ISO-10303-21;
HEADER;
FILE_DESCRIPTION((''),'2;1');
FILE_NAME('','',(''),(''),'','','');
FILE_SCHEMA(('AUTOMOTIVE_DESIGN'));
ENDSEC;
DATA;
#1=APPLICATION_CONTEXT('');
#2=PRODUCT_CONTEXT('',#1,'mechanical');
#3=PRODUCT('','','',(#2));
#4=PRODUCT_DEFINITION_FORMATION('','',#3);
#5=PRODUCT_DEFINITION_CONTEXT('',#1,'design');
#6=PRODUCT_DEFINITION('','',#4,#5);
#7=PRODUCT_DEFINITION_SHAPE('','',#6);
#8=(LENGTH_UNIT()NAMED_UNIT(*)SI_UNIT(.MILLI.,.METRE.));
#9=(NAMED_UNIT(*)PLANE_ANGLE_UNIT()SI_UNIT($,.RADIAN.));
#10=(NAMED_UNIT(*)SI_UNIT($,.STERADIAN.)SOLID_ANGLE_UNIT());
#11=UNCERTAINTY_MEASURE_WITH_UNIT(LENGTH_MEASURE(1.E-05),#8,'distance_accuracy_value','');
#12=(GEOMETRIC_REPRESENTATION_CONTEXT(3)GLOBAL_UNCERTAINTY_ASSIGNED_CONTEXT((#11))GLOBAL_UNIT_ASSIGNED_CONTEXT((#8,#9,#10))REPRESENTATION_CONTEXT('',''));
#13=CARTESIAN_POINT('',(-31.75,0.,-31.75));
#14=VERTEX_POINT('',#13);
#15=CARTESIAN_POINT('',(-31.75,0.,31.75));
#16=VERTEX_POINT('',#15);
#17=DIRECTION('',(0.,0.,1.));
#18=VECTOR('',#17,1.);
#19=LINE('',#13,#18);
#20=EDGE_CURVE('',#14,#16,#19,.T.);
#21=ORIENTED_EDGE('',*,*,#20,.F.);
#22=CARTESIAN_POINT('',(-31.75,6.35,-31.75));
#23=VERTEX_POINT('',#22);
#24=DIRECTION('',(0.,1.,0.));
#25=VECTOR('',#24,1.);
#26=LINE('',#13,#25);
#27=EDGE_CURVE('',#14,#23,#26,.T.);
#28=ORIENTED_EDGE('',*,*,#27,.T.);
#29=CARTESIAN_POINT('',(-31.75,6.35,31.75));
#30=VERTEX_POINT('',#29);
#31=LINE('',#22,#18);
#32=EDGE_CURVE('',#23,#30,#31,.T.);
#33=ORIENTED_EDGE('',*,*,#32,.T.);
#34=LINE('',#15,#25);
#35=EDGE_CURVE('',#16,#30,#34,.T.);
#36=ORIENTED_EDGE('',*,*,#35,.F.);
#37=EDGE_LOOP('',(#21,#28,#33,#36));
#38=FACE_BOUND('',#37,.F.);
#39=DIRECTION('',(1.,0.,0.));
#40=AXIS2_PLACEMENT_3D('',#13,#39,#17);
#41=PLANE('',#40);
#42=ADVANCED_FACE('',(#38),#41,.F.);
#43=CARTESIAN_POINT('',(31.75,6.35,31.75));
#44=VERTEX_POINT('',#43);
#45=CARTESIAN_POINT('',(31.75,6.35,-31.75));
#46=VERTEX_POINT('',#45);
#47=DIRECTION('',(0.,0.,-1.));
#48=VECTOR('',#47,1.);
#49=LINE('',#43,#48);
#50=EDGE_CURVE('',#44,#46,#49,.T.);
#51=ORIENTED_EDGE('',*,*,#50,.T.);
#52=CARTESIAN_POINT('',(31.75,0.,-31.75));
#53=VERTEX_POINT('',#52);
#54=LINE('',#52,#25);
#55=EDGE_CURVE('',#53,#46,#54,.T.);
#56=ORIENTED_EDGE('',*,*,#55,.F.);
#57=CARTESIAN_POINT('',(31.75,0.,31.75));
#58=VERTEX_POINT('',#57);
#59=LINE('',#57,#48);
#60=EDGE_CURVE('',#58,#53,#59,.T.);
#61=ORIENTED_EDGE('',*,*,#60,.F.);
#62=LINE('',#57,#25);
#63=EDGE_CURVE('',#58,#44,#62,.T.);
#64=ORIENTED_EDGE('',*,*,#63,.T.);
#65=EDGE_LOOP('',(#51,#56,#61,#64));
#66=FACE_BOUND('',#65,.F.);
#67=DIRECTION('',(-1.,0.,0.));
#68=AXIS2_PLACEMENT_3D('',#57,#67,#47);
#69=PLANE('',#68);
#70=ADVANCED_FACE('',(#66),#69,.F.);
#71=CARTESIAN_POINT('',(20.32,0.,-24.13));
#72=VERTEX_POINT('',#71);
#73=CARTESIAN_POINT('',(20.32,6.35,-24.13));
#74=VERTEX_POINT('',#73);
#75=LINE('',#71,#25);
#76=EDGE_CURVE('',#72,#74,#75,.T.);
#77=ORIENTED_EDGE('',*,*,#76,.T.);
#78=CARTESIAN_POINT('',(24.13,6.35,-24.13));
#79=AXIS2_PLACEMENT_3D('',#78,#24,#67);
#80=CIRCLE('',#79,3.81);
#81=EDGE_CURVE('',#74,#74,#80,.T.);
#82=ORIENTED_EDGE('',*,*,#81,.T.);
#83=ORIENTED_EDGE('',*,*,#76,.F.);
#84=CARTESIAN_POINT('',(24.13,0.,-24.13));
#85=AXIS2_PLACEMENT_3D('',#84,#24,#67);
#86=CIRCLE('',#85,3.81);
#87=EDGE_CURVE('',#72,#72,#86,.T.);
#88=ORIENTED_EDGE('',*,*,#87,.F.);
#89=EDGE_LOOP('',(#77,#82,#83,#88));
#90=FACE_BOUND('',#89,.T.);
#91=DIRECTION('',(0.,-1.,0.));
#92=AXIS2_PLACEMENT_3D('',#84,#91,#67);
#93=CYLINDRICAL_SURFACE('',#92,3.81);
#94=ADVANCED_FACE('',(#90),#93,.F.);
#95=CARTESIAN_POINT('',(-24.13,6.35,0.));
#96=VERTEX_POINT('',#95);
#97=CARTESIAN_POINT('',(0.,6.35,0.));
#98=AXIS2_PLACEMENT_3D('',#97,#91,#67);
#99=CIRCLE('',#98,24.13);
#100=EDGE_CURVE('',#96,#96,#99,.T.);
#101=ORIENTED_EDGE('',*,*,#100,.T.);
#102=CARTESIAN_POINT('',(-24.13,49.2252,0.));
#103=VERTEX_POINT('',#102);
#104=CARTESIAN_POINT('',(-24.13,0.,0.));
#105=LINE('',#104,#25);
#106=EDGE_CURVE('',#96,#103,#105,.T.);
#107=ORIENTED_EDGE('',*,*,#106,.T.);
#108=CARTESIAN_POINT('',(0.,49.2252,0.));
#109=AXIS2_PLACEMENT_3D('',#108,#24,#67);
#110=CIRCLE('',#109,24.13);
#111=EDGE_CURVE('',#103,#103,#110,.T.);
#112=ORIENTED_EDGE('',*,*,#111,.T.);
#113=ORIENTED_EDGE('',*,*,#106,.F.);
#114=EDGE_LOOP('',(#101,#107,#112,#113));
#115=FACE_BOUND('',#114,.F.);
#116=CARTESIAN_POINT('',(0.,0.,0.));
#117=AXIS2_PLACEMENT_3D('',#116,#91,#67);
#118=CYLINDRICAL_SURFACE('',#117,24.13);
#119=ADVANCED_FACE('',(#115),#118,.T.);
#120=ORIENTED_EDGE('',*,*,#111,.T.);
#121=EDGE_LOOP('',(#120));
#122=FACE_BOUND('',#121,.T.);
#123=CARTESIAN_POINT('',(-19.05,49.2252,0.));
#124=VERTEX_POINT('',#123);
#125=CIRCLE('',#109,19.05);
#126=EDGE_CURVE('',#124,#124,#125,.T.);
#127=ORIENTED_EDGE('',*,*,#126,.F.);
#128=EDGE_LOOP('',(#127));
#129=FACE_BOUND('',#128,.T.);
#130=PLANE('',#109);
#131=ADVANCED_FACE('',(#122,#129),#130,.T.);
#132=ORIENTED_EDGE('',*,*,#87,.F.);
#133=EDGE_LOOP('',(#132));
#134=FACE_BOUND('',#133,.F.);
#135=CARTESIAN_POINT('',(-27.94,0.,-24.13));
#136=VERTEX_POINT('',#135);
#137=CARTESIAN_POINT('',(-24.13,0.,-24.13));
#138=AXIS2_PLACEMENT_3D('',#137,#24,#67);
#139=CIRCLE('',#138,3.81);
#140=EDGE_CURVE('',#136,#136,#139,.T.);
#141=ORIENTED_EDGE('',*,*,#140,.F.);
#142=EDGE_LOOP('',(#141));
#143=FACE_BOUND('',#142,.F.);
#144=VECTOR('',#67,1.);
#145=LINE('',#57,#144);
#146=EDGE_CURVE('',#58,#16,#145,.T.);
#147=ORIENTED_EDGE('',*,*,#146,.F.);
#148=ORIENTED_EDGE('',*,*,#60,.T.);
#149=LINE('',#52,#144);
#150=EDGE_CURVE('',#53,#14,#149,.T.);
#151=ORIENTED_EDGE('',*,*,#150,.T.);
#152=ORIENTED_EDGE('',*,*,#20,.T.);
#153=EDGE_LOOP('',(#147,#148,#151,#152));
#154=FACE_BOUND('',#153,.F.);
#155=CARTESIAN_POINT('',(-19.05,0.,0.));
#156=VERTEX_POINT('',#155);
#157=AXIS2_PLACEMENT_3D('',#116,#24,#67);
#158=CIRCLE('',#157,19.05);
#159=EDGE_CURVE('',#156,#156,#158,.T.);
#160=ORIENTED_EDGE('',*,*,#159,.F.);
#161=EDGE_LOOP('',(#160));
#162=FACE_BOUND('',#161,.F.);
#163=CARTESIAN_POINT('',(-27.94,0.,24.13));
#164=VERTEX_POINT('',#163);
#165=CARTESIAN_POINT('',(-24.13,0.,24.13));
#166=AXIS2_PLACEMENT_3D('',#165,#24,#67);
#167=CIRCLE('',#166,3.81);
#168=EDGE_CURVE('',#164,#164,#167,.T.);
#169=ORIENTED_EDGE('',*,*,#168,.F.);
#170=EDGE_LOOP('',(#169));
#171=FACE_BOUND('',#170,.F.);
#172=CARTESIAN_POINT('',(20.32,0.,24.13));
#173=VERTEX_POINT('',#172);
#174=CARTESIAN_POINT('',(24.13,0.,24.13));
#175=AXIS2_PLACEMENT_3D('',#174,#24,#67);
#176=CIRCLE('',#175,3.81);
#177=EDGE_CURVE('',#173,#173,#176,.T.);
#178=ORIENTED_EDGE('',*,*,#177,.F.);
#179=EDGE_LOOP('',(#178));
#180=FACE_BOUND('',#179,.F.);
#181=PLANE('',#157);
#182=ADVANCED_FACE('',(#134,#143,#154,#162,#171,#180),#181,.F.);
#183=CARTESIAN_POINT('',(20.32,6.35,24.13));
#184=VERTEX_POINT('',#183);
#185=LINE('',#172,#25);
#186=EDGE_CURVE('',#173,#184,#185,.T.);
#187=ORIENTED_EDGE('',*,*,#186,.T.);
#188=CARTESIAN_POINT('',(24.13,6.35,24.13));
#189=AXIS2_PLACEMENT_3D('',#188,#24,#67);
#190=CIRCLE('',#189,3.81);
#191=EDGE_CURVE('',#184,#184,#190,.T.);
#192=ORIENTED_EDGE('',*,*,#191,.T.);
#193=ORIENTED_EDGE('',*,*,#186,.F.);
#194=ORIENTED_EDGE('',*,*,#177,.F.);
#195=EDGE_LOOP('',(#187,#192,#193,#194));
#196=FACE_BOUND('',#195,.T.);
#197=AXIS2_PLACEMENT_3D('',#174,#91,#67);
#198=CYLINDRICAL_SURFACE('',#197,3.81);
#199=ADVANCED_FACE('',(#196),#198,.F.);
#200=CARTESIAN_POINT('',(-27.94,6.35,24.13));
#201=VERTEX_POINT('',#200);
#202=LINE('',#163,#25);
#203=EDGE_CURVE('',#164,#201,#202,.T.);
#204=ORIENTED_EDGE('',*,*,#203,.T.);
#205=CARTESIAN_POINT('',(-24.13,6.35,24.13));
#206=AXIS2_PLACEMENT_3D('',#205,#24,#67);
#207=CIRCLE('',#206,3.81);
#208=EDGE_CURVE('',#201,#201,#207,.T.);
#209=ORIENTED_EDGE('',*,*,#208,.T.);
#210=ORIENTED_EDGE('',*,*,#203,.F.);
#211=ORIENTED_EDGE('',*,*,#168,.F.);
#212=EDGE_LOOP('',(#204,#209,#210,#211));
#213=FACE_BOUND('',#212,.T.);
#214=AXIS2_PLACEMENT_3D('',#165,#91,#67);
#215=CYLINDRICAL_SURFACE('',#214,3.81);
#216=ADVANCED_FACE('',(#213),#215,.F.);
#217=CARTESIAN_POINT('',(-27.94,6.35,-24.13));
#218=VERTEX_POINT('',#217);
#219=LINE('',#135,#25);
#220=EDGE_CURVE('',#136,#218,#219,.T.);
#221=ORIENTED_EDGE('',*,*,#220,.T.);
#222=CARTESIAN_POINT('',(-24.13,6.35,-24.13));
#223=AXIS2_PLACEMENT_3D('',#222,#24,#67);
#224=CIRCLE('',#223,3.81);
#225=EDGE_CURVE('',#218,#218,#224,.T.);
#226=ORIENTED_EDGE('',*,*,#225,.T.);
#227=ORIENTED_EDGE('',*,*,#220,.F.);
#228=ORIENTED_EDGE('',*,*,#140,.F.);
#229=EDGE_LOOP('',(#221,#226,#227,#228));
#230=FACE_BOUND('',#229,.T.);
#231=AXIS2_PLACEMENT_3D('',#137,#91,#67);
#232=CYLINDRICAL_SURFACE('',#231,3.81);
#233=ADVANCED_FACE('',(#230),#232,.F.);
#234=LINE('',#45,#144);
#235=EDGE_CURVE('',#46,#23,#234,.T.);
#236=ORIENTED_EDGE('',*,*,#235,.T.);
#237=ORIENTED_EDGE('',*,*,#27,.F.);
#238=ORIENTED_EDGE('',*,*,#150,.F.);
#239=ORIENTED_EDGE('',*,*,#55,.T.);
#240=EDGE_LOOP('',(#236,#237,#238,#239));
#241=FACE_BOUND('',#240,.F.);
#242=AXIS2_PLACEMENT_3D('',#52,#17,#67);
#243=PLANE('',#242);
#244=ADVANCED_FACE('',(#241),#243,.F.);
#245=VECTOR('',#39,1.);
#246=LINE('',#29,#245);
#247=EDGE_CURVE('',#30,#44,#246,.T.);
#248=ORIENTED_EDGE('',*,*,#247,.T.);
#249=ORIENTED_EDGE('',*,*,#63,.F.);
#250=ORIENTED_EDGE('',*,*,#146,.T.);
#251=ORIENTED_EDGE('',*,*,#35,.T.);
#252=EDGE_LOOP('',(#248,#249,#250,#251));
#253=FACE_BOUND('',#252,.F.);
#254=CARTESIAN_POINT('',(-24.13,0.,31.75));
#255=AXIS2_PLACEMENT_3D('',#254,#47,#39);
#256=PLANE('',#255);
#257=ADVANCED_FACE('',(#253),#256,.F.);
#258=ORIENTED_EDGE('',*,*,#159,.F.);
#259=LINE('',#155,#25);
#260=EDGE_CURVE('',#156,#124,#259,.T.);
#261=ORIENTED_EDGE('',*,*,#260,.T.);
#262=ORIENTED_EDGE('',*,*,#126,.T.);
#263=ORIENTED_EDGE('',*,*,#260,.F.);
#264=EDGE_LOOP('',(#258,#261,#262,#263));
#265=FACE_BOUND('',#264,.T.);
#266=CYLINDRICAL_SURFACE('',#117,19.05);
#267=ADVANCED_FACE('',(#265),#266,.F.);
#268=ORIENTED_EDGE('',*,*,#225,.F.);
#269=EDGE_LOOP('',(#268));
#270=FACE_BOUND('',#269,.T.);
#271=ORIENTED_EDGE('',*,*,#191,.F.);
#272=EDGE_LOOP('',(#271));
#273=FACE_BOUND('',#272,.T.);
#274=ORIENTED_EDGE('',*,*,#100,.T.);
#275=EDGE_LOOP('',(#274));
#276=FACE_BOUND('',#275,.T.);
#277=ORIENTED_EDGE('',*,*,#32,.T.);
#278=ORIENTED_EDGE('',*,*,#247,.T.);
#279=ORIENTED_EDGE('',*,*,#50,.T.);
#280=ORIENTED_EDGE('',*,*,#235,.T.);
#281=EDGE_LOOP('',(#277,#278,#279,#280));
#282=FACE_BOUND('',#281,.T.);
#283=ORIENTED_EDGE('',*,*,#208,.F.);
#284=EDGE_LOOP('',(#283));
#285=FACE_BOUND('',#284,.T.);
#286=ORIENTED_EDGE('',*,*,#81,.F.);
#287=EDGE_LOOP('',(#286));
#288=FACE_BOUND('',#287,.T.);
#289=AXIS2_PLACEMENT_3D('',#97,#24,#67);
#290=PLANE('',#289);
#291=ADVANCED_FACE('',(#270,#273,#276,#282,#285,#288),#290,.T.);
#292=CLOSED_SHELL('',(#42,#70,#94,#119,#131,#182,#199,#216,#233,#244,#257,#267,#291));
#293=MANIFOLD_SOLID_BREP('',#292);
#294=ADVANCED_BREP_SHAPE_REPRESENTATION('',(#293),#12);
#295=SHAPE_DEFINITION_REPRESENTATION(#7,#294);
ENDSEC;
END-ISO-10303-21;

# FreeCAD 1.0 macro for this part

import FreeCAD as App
import Part
import Sketcher

V = App.Vector
Q = App.Units.Quantity


def add_polygon(sketch, points):
    """Adds a closed chain of lines whose ends are joined by coincident constraints."""
    first, n = sketch.GeometryCount, len(points)
    for a, b in zip(points, points[1:] + points[:1]):
        sketch.addGeometry(Part.LineSegment(App.Vector(*a, 0), App.Vector(*b, 0)), False)
    for i in range(n):
        sketch.addConstraint(Sketcher.Constraint("Coincident", first + i, 2, first + (i + 1) % n, 1))

doc = App.newDocument("Part")
body = doc.addObject("PartDesign::Body", "Body")

# Sketch on XZ plane
sketch1 = doc.addObject("Sketcher::SketchObject", "Sketch")
body.addObject(sketch1)
sketch1.AttachmentSupport = (doc.XZ_Plane, [""])
sketch1.MapMode = "FlatFace"
sketch1.addGeometry(Part.Circle(V(0, 0, 0), V(0, 0, 1), 24), False)
sketch1.addGeometry(Part.Circle(V(0, 0, 0), V(0, 0, 1), 19), False)
sketch1.addConstraint(Sketcher.Constraint("Coincident", 0, 3, -1, 1))
sketch1.addConstraint(Sketcher.Constraint("Coincident", 1, 3, -1, 1))
sketch1.addConstraint(Sketcher.Constraint("Diameter", 0, Q("1.9 in")))
sketch1.addConstraint(Sketcher.Constraint("Diameter", 1, Q("1.5 in")))
pad1 = doc.addObject("PartDesign::Pad", "Pad")
body.addObject(pad1)
pad1.Profile = sketch1
pad1.Length = Q("1.938 in")
pad1.Reversed = True

# Sketch on XZ plane
sketch2 = doc.addObject("Sketcher::SketchObject", "Sketch001")
body.addObject(sketch2)
sketch2.AttachmentSupport = (doc.XZ_Plane, [""])
sketch2.MapMode = "FlatFace"
add_polygon(sketch2, [(-32, -32), (-32, 32), (32, 32), (32, -32)])  # lines 0-3
sketch2.addGeometry(Part.Circle(V(0, 0, 0), V(0, 0, 1), 19), False)  # 4
sketch2.addConstraint(Sketcher.Constraint("Vertical", 0))
sketch2.addConstraint(Sketcher.Constraint("Horizontal", 1))
sketch2.addConstraint(Sketcher.Constraint("Vertical", 2))
sketch2.addConstraint(Sketcher.Constraint("Horizontal", 3))
sketch2.addConstraint(Sketcher.Constraint("Coincident", 4, 3, -1, 1))
sketch2.addConstraint(Sketcher.Constraint("Symmetric", 0, 2, 2, 2, -1, 1))
sketch2.addConstraint(Sketcher.Constraint("Equal", 3, 0))
sketch2.addConstraint(Sketcher.Constraint("DistanceX", 1, 1, 1, 2, Q("2.5 in")))
sketch2.addConstraint(Sketcher.Constraint("Diameter", 4, Q("1.5 in")))
pad2 = doc.addObject("PartDesign::Pad", "Pad001")
body.addObject(pad2)
pad2.Profile = sketch2
pad2.Length = Q("0.25 in")
pad2.Reversed = True

# Sketch on XZ plane
sketch3 = doc.addObject("Sketcher::SketchObject", "Sketch002")
body.addObject(sketch3)
sketch3.AttachmentSupport = (doc.XZ_Plane, [""])
sketch3.MapMode = "FlatFace"
sketch3.addGeometry(Part.Circle(V(-24.1, 24.1, 0), V(0, 0, 1), 3.8), False)
sketch3.addGeometry(Part.Circle(V(24.1, 24.1, 0), V(0, 0, 1), 3.8), False)
sketch3.addGeometry(Part.Circle(V(-24.1, -24.1, 0), V(0, 0, 1), 3.8), False)
sketch3.addGeometry(Part.Circle(V(24.1, -24.1, 0), V(0, 0, 1), 3.8), False)
sketch3.addConstraint(Sketcher.Constraint("Equal", 0, 1))
sketch3.addConstraint(Sketcher.Constraint("Equal", 1, 2))
sketch3.addConstraint(Sketcher.Constraint("Equal", 2, 3))
sketch3.addConstraint(Sketcher.Constraint("Symmetric", 1, 3, 2, 3, -1, 1))
sketch3.addConstraint(Sketcher.Constraint("Symmetric", 0, 3, 3, 3, -1, 1))
sketch3.addConstraint(Sketcher.Constraint("Symmetric", 0, 3, 1, 3, -2))
sketch3.addConstraint(Sketcher.Constraint("Diameter", 0, Q("0.3 in")))
sketch3.addConstraint(Sketcher.Constraint("DistanceX", 0, 3, 1, 3, Q("1.9 in")))
sketch3.addConstraint(Sketcher.Constraint("DistanceY", 2, 3, 0, 3, Q("1.9 in")))
pocket1 = doc.addObject("PartDesign::Pocket", "Pocket")
body.addObject(pocket1)
pocket1.Profile = sketch3
pocket1.Length = Q("0.25 in")

doc.recompute()
